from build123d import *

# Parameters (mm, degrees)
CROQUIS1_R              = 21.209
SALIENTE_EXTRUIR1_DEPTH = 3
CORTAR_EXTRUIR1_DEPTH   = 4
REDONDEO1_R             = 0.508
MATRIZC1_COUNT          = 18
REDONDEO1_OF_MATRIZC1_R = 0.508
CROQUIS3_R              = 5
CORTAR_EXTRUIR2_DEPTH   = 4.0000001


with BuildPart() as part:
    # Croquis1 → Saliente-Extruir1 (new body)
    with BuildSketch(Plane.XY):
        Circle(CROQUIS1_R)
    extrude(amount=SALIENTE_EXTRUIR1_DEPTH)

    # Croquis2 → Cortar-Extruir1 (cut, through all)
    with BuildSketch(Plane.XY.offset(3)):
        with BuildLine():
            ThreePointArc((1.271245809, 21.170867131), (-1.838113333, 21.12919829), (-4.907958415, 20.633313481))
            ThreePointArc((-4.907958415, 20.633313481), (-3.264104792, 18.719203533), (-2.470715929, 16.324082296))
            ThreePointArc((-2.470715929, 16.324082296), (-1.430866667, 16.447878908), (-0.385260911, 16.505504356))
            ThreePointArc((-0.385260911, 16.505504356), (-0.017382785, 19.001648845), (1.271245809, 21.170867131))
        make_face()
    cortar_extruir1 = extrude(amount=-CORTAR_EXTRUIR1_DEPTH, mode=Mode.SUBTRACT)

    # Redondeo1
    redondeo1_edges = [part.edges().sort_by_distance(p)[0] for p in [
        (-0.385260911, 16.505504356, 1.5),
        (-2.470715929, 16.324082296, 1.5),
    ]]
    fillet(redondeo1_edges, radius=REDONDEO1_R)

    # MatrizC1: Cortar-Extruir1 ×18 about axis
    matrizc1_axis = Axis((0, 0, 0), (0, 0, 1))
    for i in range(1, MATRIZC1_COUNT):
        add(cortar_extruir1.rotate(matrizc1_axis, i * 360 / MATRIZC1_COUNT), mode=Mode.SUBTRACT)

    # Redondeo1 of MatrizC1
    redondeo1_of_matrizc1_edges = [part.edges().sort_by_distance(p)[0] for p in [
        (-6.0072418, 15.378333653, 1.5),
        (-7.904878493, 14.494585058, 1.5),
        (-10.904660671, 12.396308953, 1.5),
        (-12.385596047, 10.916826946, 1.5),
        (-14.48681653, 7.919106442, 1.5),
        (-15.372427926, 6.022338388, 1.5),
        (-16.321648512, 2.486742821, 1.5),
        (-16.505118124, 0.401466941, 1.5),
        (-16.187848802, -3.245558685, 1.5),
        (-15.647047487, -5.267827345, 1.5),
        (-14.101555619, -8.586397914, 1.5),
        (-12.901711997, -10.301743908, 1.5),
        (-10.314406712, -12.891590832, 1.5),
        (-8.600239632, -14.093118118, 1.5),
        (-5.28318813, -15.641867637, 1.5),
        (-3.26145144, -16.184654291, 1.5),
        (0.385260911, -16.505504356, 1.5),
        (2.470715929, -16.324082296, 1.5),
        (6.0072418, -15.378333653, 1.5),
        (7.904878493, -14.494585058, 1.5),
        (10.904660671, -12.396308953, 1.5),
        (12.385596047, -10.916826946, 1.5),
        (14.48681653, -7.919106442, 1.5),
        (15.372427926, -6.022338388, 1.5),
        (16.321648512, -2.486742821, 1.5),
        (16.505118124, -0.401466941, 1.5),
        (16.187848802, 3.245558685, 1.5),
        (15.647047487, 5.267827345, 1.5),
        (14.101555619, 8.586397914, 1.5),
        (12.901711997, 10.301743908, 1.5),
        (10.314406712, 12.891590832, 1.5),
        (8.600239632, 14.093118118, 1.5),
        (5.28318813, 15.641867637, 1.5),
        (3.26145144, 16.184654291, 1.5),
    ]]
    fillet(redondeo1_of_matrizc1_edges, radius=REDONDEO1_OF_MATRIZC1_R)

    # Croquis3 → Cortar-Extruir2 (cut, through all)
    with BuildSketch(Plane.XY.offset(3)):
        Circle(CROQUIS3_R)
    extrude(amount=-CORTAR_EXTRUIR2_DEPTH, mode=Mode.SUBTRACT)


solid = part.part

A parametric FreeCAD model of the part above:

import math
import FreeCAD as App
import Part
import Sketcher

V = App.Vector
Q = App.Units.Quantity


def edges_at(feature, points):
    """Names of the edges that pass closest to the given points."""
    edges = feature.Shape.Edges
    near = lambda p: min(range(len(edges)), key=lambda i: edges[i].distToShape(Part.Vertex(*p))[0])
    return sorted({f"Edge{near(p) + 1}" for p in points})

doc = App.newDocument("Part")
body = doc.addObject("PartDesign::Body", "Body")

# Sketch on XY plane
sketch1 = body.newObject("Sketcher::SketchObject", "Sketch")
sketch1.AttachmentSupport = (doc.getObject("XY_Plane"), [""])
sketch1.MapMode = "FlatFace"
sketch1.addGeometry(Part.Circle(V(0, 0, 0), V(0, 0, 1), 21), False)
sketch1.addConstraint([
    Sketcher.Constraint("Coincident", 0, 3, -1, 1),
    Sketcher.Constraint("Diameter", 0, Q("42.418 mm")),
])
pad1 = body.newObject("PartDesign::Pad", "Pad")
pad1.Profile = sketch1
pad1.Length = 3

# Sketch on XY plane
sketch2 = body.newObject("Sketcher::SketchObject", "Sketch001")
sketch2.AttachmentSupport = (doc.getObject("XY_Plane"), [""])
sketch2.MapMode = "FlatFace"
sketch2.AttachmentOffset = App.Placement(V(0, 0, 3), App.Rotation())
sketch2.addGeometry([
    Part.ArcOfCircle(Part.Circle(V(0, 0, 0), V(0, 0, 1), 21.2), math.radians(86.56), math.radians(103.38)),
    Part.ArcOfCircle(Part.Circle(V(-8.9, 15.5, 0), V(0, 0, 1), 6.5), math.radians(7), math.radians(52)),
    Part.ArcOfCircle(Part.Circle(V(0, 0, 0), V(0, 0, 1), 16.5), math.radians(91.34), math.radians(98.61)),
    Part.ArcOfCircle(Part.Circle(V(6.1, 16.8, 0), V(0, 0, 1), 6.5), math.radians(138), math.radians(183)),
], False)
sketch2.addConstraint([
    Sketcher.Constraint("Coincident", 0, 2, 1, 2),
    Sketcher.Constraint("Coincident", 1, 1, 2, 2),
    Sketcher.Constraint("Coincident", 2, 1, 3, 2),
    Sketcher.Constraint("Coincident", 3, 1, 0, 1),
    Sketcher.Constraint("Coincident", 0, 3, -1, 1),
    Sketcher.Constraint("Coincident", 2, 3, -1, 1),
    Sketcher.Constraint("Equal", 1, 3),
    Sketcher.Constraint("Radius", 2, Q("16.51 mm")),
    Sketcher.Constraint("Radius", 0, Q("21.209 mm")),
    Sketcher.Constraint("Radius", 1, Q("6.515484 mm")),
    Sketcher.Constraint("DistanceX", 1, 3, 3, 3, Q("15.057898 mm")),
    Sketcher.Constraint("DistanceX", -1, 1, 3, 3, Q("6.122552 mm")),
    Sketcher.Constraint("DistanceX", 0, 2, -1, 1, Q("4.907958 mm")),
    Sketcher.Constraint("DistanceX", 2, 1, -1, 1, Q("0.385261 mm")),
])
pocket1 = body.newObject("PartDesign::Pocket", "Pocket")
pocket1.Profile = sketch2
pocket1.Type = "ThroughAll"
doc.recompute()

fillet = body.newObject("PartDesign::Fillet", "Fillet")
fillet.Base = (pocket1, edges_at(pocket1, [(-0.385, 16.506, 1.5), (-2.471, 16.324, 1.5)]))
fillet.Radius = 0.508
doc.recompute()

polarpattern = body.newObject("PartDesign::PolarPattern", "PolarPattern")
polarpattern.Originals = [pocket1]
polarpattern.Axis = (doc.getObject("Z_Axis"), [""])
polarpattern.Angle = 360
polarpattern.Occurrences = 18
body.Tip = polarpattern
doc.recompute()

fillet2 = body.newObject("PartDesign::Fillet", "Fillet001")
fillet2.Base = (polarpattern, edges_at(polarpattern, [
    (-6.007, 15.378, 1.5),
    (-7.905, 14.495, 1.5),
    (-10.905, 12.396, 1.5),
    (-12.386, 10.917, 1.5),
    (-14.487, 7.919, 1.5),
    (-15.372, 6.022, 1.5),
    (-16.322, 2.487, 1.5),
    (-16.505, 0.401, 1.5),
    (-16.188, -3.246, 1.5),
    (-15.647, -5.268, 1.5),
    (-14.102, -8.586, 1.5),
    (-12.902, -10.302, 1.5),
    (-10.314, -12.892, 1.5),
    (-8.6, -14.093, 1.5),
    (-5.283, -15.642, 1.5),
    (-3.261, -16.185, 1.5),
    (0.385, -16.506, 1.5),
    (2.471, -16.324, 1.5),
    (6.007, -15.378, 1.5),
    (7.905, -14.495, 1.5),
    (10.905, -12.396, 1.5),
    (12.386, -10.917, 1.5),
    (14.487, -7.919, 1.5),
    (15.372, -6.022, 1.5),
    (16.322, -2.487, 1.5),
    (16.505, -0.401, 1.5),
    (16.188, 3.246, 1.5),
    (15.647, 5.268, 1.5),
    (14.102, 8.586, 1.5),
    (12.902, 10.302, 1.5),
    (10.314, 12.892, 1.5),
    (8.6, 14.093, 1.5),
    (5.283, 15.642, 1.5),
    (3.261, 16.185, 1.5),
]))
fillet2.Radius = 0.508

# Sketch on XY plane
sketch3 = body.newObject("Sketcher::SketchObject", "Sketch002")
sketch3.AttachmentSupport = (doc.getObject("XY_Plane"), [""])
sketch3.MapMode = "FlatFace"
sketch3.AttachmentOffset = App.Placement(V(0, 0, 3), App.Rotation())
sketch3.addGeometry(Part.Circle(V(0, 0, 0), V(0, 0, 1), 5), False)
sketch3.addConstraint([
    Sketcher.Constraint("Coincident", 0, 3, -1, 1),
    Sketcher.Constraint("Diameter", 0, Q("10 mm")),
])
pocket2 = body.newObject("PartDesign::Pocket", "Pocket001")
pocket2.Profile = sketch3
pocket2.Type = "ThroughAll"

doc.recompute()
